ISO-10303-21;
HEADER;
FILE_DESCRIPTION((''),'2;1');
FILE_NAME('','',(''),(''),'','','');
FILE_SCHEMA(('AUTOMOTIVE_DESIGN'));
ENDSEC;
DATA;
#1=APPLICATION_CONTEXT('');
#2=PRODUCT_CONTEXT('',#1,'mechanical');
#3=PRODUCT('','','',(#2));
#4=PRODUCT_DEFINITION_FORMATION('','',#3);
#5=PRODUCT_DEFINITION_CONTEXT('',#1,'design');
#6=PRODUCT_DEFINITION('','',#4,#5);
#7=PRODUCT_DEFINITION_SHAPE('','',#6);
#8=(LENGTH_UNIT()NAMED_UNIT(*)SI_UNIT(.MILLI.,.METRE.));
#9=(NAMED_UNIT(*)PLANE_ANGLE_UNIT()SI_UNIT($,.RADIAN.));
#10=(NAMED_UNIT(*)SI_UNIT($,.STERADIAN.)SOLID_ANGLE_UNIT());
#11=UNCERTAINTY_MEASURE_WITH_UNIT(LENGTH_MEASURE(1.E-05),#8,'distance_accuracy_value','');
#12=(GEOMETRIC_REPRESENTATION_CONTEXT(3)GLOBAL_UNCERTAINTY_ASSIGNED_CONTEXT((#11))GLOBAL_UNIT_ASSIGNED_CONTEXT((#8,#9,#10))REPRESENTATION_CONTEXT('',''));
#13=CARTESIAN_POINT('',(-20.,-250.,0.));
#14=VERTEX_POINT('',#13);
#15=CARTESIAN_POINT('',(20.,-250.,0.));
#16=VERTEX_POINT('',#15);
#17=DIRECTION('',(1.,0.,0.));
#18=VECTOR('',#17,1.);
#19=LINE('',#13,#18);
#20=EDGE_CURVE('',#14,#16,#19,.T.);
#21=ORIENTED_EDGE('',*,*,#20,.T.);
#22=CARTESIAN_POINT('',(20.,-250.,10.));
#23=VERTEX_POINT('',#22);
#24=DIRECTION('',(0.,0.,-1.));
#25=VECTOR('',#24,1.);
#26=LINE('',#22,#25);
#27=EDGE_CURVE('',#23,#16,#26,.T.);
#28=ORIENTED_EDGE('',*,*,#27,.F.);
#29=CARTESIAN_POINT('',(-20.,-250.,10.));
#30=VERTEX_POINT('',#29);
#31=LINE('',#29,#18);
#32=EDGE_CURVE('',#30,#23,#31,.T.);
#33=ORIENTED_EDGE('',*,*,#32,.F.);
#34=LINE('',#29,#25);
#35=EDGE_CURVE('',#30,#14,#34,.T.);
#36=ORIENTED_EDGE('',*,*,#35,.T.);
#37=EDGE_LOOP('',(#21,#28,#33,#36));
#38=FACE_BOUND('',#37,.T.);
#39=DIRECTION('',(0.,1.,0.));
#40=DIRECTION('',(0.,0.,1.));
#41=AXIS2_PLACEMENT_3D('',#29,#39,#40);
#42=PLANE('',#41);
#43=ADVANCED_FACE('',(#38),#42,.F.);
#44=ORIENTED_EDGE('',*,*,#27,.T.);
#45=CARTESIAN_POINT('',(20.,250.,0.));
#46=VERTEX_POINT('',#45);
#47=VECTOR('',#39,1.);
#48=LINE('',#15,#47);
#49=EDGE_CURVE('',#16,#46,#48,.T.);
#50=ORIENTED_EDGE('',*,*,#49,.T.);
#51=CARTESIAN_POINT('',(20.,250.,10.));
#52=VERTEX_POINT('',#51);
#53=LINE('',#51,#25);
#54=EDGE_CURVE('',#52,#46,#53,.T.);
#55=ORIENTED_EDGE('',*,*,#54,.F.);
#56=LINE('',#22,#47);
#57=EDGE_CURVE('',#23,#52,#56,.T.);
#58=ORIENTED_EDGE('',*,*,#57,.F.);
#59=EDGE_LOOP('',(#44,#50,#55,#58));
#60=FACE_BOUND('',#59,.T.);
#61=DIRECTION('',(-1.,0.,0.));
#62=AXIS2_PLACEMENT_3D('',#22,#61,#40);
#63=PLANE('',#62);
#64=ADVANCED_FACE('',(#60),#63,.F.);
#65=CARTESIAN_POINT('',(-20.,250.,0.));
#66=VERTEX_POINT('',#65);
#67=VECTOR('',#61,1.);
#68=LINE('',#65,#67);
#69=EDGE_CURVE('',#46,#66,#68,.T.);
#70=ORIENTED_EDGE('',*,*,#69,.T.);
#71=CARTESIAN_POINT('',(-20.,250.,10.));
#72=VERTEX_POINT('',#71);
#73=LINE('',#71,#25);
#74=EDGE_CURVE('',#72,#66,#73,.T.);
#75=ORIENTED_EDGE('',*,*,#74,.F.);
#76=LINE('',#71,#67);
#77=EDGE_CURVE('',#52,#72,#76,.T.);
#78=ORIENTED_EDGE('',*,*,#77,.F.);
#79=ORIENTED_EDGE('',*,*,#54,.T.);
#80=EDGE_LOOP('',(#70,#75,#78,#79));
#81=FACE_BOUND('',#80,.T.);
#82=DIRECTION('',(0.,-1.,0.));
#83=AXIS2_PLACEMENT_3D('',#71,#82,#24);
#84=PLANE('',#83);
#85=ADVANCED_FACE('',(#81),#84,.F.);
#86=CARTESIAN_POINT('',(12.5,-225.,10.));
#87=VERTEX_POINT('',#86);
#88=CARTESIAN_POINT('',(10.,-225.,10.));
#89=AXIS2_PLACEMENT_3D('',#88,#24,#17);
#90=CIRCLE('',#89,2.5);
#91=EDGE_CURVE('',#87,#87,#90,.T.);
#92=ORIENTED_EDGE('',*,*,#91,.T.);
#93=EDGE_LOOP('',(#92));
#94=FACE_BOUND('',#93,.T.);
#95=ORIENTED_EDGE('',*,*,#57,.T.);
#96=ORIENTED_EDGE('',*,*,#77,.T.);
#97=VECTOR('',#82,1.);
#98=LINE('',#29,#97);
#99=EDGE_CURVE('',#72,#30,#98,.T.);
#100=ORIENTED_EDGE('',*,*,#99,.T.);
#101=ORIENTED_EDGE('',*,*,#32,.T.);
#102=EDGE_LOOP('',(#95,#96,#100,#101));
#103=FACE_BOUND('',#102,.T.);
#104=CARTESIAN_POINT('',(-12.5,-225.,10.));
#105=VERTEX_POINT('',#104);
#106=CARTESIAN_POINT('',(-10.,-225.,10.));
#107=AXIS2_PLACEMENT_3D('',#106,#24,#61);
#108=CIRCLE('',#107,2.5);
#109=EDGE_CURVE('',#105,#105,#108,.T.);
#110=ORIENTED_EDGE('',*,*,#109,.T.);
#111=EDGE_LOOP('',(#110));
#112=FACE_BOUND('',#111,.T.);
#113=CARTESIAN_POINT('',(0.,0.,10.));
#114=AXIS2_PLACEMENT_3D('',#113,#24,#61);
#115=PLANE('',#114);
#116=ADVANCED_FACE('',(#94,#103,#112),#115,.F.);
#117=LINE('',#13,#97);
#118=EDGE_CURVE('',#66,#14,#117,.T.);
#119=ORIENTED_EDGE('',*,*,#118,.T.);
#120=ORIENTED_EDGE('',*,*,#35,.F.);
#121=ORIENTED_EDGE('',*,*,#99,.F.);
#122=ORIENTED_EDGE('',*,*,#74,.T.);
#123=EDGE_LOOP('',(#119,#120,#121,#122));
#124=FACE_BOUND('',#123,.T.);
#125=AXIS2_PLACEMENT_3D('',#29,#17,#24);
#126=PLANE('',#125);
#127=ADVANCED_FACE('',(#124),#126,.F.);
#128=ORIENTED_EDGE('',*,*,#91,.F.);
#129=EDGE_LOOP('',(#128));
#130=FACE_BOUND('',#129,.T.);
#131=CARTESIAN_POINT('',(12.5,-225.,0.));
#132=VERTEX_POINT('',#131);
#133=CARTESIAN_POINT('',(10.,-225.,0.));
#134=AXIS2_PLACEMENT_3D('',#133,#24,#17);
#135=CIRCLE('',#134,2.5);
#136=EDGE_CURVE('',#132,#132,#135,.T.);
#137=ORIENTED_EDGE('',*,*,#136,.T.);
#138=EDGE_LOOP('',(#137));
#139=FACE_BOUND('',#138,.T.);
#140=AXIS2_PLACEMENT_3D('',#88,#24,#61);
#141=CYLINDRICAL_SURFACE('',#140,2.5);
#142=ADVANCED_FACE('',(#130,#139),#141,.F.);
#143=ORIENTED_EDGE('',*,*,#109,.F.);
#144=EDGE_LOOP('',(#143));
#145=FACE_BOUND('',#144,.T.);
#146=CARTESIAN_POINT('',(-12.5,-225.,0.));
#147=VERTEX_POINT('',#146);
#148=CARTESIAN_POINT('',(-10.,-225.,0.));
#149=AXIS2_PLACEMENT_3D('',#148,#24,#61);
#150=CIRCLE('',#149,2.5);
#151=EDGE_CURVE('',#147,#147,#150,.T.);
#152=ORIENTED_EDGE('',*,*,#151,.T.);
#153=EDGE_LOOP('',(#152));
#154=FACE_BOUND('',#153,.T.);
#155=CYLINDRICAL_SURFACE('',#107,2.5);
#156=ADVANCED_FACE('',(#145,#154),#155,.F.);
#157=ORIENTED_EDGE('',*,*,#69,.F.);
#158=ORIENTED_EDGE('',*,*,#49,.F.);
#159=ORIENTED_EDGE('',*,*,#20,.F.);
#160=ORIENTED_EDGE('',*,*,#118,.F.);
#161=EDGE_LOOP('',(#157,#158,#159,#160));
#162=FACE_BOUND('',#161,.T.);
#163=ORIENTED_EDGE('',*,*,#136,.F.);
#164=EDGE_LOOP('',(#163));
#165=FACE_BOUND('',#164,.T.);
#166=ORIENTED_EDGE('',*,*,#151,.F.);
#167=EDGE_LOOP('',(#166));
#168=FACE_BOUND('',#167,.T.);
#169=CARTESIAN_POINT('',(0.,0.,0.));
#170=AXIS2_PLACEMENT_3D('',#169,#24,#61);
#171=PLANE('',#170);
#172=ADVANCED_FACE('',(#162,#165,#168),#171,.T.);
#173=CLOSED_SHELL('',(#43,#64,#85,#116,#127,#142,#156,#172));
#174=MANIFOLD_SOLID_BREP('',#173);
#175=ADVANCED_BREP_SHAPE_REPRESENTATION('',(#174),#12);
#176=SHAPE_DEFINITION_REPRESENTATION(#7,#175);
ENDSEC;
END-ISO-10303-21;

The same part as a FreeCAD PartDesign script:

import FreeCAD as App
import Part
import Sketcher
from FreeCAD import Vector
Q = App.Units.Quantity


def add_polygon(sketch, points):
    """Adds a closed chain of lines whose ends are joined by coincident constraints."""
    first, n = sketch.GeometryCount, len(points)
    for a, b in zip(points, points[1:] + points[:1]):
        sketch.addGeometry(Part.LineSegment(App.Vector(*a, 0), App.Vector(*b, 0)), False)
    for i in range(n):
        sketch.addConstraint(Sketcher.Constraint("Coincident", first + i, 2, first + (i + 1) % n, 1))

doc = App.newDocument("Part")
params = doc.addObject("Spreadsheet::Sheet", "Params")
for row, (alias, value) in enumerate([
    ("sketch1_width", "40 mm"),
    ("sketch1_height", "500 mm"),
    ("pad1_length", "10 mm"),
    ("sketch2_diameter", "5 mm"),
], start=1):
    params.set(f"A{row}", alias)
    params.set(f"B{row}", "=" + value)
    params.setAlias(f"B{row}", alias)

body = doc.addObject("PartDesign::Body", "Body")

sketch1 = body.newObject("Sketcher::SketchObject", "Sketch")
sketch1.AttachmentSupport = (doc.getObject("XY_Plane"), [""])
sketch1.MapMode = "FlatFace"
add_polygon(sketch1, [(-20, 250), (-20, -250), (20, -250), (20, 250)])
sketch1.addConstraint([
    Sketcher.Constraint("Vertical", 0),
    Sketcher.Constraint("Horizontal", 1),
    Sketcher.Constraint("Vertical", 2),
    Sketcher.Constraint("Horizontal", 3),
    Sketcher.Constraint("Symmetric", 0, 2, 2, 2, -1, 1),
    Sketcher.Constraint("DistanceX", 1, 1, 1, 2, Q("40 mm")),
    Sketcher.Constraint("DistanceY", 0, 2, 0, 1, Q("500 mm")),
])
sketch1.setExpression("Constraints[9]", "Params.sketch1_width")
sketch1.setExpression("Constraints[10]", "Params.sketch1_height")
pad1 = body.newObject("PartDesign::Pad", "Pad")
pad1.Profile = sketch1
pad1.setExpression("Length", "Params.pad1_length")

sketch2 = body.newObject("Sketcher::SketchObject", "Sketch001")
sketch2.AttachmentSupport = (doc.getObject("XY_Plane"), [""])
sketch2.MapMode = "FlatFace"
sketch2.addGeometry([
    Part.Circle(Vector(-10, -225, 0), Vector(0, 0, 1), 2.5),
    Part.Circle(Vector(10, -225, 0), Vector(0, 0, 1), 2.5),
], False)
sketch2.addConstraint([
    Sketcher.Constraint("Equal", 0, 1),
    Sketcher.Constraint("Symmetric", 0, 3, 1, 3, -2),
    Sketcher.Constraint("Diameter", 0, Q("5 mm")),
    Sketcher.Constraint("DistanceX", 0, 3, -1, 1, Q("10 mm")),
    Sketcher.Constraint("DistanceY", 0, 3, -1, 1, Q("225 mm")),
])
sketch2.setExpression("Constraints[2]", "Params.sketch2_diameter")
pocket1 = body.newObject("PartDesign::Pocket", "Pocket")
pocket1.Profile = sketch2
pocket1.Type = "ThroughAll"
pocket1.Reversed = True

doc.recompute()
